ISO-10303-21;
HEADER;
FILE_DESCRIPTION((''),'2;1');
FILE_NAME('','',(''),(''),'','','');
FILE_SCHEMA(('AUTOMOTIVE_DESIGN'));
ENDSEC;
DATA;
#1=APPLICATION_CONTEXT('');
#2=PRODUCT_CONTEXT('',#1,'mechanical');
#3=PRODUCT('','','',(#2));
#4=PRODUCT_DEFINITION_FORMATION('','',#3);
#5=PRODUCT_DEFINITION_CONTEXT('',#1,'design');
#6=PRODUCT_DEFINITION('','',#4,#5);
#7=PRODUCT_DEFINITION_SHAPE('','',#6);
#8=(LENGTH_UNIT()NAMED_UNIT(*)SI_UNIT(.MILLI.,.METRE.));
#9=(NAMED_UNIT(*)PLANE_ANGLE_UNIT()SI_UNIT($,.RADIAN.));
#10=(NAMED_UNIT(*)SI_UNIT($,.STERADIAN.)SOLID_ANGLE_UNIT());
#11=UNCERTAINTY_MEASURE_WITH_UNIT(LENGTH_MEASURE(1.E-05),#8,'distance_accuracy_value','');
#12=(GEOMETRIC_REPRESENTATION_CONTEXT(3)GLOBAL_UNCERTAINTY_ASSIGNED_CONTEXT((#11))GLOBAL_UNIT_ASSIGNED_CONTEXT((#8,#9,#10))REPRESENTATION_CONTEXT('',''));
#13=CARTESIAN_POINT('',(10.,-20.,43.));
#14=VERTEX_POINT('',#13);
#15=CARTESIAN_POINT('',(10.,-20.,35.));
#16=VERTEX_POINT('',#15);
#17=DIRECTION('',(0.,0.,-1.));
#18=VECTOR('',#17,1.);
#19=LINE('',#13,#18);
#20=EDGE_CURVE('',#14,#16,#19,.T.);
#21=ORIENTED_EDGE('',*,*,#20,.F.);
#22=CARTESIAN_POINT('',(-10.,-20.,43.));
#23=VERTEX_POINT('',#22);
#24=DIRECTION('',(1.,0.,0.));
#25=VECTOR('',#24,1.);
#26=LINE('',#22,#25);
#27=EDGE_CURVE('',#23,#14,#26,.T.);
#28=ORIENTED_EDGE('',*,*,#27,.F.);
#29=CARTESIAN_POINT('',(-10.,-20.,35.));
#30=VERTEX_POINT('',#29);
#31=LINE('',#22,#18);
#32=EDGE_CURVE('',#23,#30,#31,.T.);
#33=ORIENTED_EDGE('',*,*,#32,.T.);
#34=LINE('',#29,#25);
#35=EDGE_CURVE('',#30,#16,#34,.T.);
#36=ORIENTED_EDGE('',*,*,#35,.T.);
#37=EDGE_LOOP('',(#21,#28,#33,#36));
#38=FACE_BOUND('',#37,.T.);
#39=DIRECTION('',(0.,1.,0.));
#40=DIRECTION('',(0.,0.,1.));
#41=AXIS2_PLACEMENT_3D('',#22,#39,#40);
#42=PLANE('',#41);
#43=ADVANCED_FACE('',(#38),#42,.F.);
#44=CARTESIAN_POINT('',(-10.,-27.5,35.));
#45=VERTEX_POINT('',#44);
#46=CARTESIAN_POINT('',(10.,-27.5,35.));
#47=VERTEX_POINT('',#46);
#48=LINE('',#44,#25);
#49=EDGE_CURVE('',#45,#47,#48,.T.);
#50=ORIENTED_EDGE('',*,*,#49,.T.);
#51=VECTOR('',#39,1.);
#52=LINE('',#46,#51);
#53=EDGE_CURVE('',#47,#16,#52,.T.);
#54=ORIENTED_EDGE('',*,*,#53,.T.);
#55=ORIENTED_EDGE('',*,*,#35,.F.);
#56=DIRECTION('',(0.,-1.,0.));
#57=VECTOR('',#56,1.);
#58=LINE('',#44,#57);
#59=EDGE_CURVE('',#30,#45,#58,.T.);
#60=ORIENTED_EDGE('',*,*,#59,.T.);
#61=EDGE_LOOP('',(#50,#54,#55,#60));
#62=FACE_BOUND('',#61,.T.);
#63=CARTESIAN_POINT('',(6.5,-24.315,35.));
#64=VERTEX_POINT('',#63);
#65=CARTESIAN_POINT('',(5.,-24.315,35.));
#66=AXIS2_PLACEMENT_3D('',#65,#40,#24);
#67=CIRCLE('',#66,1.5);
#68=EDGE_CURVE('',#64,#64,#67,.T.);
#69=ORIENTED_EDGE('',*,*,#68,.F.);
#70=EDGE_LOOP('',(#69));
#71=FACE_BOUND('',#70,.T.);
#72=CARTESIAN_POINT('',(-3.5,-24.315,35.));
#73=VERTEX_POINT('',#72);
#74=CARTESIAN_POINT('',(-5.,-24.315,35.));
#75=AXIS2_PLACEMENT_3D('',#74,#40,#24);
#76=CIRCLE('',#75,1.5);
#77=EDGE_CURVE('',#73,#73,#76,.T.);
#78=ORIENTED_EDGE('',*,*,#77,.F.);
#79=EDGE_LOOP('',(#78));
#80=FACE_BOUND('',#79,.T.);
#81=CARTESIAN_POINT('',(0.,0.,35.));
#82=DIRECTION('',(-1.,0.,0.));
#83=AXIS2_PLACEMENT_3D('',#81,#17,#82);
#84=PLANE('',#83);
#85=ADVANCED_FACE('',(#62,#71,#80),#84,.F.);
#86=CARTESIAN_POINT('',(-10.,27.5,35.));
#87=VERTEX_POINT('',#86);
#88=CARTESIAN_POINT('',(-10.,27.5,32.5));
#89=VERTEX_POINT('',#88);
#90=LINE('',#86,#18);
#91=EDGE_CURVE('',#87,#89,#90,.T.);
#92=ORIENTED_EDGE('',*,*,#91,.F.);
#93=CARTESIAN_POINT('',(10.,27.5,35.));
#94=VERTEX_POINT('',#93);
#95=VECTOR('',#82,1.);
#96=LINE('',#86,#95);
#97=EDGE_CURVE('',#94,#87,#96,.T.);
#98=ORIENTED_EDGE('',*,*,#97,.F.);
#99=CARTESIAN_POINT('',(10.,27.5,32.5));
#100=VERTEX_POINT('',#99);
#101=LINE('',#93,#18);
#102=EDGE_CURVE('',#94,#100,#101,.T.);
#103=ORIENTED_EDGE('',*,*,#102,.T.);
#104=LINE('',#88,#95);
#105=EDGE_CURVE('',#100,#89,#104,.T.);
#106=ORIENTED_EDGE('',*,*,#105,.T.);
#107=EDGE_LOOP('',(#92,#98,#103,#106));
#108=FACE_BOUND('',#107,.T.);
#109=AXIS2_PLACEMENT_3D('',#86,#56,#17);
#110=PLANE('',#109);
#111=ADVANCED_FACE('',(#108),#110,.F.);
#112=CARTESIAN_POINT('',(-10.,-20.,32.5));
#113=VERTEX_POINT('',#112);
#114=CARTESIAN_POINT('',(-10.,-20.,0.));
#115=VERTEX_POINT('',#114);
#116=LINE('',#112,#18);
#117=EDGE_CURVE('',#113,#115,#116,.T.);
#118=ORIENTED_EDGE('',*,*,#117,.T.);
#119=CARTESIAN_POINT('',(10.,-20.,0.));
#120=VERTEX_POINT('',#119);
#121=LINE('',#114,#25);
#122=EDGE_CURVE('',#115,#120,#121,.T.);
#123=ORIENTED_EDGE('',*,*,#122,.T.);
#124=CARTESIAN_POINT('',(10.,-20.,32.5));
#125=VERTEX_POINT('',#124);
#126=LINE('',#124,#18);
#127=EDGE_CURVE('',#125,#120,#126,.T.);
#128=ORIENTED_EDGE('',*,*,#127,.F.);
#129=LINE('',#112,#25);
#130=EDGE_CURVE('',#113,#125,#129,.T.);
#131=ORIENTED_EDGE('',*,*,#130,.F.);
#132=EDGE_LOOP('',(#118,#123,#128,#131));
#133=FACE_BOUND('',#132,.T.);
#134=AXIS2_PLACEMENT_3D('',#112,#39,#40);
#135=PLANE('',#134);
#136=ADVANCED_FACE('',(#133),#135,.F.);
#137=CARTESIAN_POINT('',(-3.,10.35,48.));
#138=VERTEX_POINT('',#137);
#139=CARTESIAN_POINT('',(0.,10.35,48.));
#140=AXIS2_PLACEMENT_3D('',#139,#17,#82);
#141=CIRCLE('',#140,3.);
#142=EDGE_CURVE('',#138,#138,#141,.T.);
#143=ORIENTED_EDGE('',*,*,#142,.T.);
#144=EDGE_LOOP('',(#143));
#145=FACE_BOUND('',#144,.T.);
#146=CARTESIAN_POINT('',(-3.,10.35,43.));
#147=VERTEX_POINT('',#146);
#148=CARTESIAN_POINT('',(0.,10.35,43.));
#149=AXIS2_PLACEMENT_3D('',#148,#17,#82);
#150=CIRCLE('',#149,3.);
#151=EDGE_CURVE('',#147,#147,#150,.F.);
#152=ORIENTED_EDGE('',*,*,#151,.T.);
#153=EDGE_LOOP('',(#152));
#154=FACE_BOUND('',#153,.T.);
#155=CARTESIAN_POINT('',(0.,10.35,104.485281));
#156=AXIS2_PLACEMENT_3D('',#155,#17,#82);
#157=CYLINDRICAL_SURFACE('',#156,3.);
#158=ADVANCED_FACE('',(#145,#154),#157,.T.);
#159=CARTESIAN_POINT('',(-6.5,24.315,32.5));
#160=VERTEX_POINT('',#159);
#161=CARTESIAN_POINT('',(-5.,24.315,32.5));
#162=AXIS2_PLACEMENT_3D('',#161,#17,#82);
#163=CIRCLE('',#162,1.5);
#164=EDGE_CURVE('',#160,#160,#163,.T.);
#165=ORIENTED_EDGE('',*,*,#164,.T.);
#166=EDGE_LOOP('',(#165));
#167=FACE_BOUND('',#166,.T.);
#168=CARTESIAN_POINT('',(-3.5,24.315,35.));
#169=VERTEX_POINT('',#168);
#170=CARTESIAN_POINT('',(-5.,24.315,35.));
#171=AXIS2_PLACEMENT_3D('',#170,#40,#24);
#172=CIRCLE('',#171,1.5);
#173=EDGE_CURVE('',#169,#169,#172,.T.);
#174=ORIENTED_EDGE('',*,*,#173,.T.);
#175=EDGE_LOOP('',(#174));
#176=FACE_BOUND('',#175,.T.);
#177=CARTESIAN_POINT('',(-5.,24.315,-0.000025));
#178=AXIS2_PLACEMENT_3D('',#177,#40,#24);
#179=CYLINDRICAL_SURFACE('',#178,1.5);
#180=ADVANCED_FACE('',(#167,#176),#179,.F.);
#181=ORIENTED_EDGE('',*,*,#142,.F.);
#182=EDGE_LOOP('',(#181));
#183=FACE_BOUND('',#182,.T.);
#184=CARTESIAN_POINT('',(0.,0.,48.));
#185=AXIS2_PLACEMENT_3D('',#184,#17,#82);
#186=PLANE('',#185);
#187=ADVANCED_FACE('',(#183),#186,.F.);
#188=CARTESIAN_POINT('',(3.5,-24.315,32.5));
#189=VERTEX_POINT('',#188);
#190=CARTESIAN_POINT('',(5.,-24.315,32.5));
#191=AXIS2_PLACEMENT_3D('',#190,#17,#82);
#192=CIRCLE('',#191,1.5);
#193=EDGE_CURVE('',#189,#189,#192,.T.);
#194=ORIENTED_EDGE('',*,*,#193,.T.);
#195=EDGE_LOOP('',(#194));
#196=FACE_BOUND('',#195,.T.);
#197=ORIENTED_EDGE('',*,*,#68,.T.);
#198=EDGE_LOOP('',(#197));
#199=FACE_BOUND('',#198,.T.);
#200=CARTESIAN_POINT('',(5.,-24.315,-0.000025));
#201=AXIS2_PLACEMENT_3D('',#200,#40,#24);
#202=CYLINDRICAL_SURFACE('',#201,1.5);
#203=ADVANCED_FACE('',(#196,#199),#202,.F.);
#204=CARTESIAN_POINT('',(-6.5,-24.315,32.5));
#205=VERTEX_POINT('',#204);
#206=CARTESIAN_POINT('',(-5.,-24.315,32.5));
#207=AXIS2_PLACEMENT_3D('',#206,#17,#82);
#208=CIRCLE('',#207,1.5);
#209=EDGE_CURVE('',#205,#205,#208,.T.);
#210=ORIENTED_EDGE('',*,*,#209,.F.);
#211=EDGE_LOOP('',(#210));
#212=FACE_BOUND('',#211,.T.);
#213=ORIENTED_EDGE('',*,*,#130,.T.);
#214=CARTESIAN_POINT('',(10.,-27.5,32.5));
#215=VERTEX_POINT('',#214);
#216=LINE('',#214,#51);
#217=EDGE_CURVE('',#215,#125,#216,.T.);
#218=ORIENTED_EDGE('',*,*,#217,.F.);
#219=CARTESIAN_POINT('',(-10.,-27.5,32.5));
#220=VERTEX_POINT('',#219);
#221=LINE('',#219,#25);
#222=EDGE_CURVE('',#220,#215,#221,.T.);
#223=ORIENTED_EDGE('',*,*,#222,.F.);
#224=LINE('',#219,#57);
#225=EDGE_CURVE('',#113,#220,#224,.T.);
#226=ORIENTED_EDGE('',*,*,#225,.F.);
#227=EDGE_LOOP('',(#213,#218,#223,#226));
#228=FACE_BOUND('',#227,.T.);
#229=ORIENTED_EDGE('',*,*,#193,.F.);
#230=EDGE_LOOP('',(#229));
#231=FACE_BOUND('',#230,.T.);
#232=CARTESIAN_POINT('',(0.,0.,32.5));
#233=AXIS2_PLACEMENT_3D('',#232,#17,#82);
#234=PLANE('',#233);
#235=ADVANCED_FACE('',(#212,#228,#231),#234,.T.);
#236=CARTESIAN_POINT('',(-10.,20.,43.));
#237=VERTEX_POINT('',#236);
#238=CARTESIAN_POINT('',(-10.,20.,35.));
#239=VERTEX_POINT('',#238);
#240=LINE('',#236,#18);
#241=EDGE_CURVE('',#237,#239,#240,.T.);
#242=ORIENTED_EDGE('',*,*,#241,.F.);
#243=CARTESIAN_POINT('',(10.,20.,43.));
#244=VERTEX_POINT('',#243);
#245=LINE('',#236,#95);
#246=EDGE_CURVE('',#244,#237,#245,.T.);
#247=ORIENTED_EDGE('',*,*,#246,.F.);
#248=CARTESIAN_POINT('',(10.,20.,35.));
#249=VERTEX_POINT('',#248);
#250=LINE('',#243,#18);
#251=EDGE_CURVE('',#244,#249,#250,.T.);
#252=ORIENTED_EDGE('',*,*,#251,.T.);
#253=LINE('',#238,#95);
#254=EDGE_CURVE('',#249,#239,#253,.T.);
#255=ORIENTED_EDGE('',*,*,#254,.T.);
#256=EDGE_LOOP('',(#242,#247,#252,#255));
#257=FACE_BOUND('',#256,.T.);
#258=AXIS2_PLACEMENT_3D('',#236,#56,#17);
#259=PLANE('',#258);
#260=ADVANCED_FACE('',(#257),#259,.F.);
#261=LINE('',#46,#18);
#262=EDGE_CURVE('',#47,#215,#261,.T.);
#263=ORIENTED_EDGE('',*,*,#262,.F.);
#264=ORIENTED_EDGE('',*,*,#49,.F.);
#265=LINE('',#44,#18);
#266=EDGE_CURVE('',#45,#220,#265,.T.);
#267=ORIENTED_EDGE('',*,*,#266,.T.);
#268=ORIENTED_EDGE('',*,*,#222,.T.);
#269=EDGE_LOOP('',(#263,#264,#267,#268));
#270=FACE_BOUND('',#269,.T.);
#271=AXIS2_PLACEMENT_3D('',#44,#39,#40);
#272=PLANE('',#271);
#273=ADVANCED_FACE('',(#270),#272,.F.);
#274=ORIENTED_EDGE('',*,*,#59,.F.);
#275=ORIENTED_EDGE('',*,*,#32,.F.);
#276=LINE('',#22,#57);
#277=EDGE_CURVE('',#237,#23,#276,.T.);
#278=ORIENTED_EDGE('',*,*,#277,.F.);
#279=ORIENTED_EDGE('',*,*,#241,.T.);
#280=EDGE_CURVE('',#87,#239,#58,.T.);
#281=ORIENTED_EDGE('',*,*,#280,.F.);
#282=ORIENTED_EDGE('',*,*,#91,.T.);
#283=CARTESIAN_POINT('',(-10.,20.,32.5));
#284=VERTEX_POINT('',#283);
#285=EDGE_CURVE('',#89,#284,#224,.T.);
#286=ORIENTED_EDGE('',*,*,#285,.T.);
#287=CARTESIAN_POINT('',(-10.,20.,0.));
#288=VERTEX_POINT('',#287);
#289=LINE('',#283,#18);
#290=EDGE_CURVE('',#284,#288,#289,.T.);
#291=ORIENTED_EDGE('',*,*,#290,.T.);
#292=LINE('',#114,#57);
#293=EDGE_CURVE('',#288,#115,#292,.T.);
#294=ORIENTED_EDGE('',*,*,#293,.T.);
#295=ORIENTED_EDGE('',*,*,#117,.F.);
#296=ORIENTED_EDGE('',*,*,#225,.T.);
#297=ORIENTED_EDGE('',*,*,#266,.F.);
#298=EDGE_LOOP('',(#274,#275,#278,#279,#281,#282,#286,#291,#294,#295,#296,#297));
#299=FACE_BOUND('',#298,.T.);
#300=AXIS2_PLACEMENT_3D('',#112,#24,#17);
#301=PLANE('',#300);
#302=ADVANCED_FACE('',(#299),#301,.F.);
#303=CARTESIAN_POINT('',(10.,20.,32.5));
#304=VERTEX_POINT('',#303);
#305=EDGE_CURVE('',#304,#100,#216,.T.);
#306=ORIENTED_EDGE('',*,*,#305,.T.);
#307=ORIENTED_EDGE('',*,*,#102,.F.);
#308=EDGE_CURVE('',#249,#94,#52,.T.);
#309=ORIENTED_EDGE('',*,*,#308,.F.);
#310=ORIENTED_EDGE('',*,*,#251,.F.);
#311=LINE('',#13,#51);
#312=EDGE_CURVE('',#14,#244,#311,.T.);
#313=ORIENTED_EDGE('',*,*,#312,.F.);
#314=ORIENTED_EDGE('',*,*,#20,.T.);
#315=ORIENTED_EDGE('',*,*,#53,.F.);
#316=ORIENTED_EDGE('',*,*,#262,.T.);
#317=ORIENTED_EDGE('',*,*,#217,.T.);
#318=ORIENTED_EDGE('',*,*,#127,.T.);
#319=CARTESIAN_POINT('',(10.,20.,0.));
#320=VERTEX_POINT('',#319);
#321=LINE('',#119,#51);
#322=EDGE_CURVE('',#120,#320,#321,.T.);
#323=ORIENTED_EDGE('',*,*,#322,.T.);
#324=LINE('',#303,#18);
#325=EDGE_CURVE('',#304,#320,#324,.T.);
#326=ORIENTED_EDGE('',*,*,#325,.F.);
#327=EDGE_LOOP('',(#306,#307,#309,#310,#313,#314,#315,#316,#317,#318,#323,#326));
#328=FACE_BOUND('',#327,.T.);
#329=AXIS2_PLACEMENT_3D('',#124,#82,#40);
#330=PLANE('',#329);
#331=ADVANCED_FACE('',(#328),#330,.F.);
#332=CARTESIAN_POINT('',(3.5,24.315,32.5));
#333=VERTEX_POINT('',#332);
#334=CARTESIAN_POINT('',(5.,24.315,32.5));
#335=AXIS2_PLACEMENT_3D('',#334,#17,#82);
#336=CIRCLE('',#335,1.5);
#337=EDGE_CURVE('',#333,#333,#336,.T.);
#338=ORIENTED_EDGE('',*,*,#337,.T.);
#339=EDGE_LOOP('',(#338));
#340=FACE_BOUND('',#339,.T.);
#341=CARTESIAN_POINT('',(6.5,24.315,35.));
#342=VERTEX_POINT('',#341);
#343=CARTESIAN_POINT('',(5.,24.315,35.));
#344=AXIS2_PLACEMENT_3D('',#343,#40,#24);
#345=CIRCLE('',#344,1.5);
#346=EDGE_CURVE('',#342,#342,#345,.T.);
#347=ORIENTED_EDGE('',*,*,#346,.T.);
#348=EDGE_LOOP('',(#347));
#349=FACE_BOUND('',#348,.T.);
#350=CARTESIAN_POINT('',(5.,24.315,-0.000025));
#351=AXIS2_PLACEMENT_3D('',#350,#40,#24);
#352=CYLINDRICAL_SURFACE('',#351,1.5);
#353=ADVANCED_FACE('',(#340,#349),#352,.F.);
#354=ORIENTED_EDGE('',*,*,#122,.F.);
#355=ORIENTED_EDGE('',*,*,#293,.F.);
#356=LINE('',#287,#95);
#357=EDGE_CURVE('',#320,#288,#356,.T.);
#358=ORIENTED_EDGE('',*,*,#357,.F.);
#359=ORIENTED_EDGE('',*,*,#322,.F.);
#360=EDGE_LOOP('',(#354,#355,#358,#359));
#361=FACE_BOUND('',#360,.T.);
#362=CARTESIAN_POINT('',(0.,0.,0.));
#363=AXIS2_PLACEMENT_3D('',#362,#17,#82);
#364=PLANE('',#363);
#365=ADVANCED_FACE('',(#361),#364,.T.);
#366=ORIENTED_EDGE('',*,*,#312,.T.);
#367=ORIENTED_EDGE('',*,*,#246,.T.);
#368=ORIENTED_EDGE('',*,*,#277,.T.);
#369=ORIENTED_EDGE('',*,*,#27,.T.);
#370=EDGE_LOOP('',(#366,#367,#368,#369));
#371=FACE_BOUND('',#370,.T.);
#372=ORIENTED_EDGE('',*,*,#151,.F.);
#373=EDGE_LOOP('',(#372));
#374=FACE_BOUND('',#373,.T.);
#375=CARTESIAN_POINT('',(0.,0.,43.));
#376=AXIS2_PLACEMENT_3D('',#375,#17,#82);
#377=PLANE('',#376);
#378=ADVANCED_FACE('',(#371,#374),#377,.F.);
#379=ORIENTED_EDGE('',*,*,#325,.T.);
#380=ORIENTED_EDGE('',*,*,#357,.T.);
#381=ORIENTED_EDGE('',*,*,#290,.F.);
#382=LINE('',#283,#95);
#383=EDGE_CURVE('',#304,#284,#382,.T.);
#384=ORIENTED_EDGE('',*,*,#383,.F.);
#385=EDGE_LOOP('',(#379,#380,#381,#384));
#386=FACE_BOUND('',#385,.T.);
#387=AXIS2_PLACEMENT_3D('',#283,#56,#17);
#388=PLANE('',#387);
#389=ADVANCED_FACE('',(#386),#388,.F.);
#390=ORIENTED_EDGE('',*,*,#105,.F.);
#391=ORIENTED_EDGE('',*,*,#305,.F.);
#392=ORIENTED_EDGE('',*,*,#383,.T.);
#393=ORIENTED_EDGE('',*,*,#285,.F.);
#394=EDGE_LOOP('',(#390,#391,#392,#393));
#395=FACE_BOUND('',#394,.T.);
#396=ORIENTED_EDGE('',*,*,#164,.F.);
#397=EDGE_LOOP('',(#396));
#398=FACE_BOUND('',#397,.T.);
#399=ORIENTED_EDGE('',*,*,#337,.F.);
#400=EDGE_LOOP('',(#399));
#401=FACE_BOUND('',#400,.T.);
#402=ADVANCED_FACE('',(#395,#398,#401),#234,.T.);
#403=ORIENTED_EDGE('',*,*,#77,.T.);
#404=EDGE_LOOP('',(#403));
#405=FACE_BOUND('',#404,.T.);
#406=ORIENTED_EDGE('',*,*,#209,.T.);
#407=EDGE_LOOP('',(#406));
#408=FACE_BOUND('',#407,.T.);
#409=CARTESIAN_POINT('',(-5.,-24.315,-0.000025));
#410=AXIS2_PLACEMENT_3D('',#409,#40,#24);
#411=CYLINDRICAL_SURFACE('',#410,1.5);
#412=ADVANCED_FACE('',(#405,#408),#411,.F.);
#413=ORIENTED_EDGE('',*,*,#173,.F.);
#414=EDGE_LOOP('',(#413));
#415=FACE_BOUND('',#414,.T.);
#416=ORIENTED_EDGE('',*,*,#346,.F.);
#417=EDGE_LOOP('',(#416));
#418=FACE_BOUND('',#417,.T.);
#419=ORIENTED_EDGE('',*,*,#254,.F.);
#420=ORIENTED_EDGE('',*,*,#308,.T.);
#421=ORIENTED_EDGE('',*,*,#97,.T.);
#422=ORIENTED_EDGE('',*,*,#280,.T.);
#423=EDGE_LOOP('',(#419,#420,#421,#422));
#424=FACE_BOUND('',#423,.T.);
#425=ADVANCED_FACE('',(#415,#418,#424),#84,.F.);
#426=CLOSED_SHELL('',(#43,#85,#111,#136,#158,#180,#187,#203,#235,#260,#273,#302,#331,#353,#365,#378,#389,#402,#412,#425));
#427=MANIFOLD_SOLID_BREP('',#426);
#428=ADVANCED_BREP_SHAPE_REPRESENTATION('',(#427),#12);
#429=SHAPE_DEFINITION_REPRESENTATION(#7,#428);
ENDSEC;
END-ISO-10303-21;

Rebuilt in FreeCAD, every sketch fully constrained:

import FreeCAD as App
import Part
import Sketcher
from FreeCAD import Vector

doc = App.newDocument("Part")
body = doc.addObject("PartDesign::Body", "Body")

# Sketch on XY plane
sketch1 = doc.addObject("Sketcher::SketchObject", "Sketch")
body.addObject(sketch1)
sketch1.AttachmentSupport = (doc.XY_Plane, [""])
sketch1.MapMode = "FlatFace"
sketch1.addGeometry([
    Part.LineSegment(Vector(-10, 20, 0), Vector(-10, -20, 0)),
    Part.LineSegment(Vector(-10, -20, 0), Vector(10, -20, 0)),
    Part.LineSegment(Vector(10, -20, 0), Vector(10, 20, 0)),
    Part.LineSegment(Vector(10, 20, 0), Vector(-10, 20, 0)),
], False)
sketch1.addConstraint([
    Sketcher.Constraint("Coincident", 0, 2, 1, 1),
    Sketcher.Constraint("Coincident", 1, 2, 2, 1),
    Sketcher.Constraint("Coincident", 2, 2, 3, 1),
    Sketcher.Constraint("Coincident", 3, 2, 0, 1),
    Sketcher.Constraint("Vertical", 0),
    Sketcher.Constraint("Horizontal", 1),
    Sketcher.Constraint("Vertical", 2),
    Sketcher.Constraint("Horizontal", 3),
    Sketcher.Constraint("Symmetric", 0, 2, 2, 2, -1, 1),
    Sketcher.Constraint("DistanceX", 1, 1, 1, 2, 20.0),
    Sketcher.Constraint("DistanceY", 0, 2, 0, 1, 40.0),
])
pad1 = doc.addObject("PartDesign::Pad", "Pad")
body.addObject(pad1)
pad1.Profile = sketch1
pad1.Length = 32.5

# Sketch on XY plane
sketch2 = doc.addObject("Sketcher::SketchObject", "Sketch001")
body.addObject(sketch2)
sketch2.AttachmentSupport = (doc.XY_Plane, [""])
sketch2.MapMode = "FlatFace"
sketch2.AttachmentOffset = App.Placement(Vector(0, 0, 32.5), App.Rotation())
sketch2.addGeometry([
    Part.LineSegment(Vector(-10, 27.5, 0), Vector(-10, -27.5, 0)),
    Part.LineSegment(Vector(-10, -27.5, 0), Vector(10, -27.5, 0)),
    Part.LineSegment(Vector(10, -27.5, 0), Vector(10, 27.5, 0)),
    Part.LineSegment(Vector(10, 27.5, 0), Vector(-10, 27.5, 0)),
], False)
sketch2.addConstraint([
    Sketcher.Constraint("Coincident", 0, 2, 1, 1),
    Sketcher.Constraint("Coincident", 1, 2, 2, 1),
    Sketcher.Constraint("Coincident", 2, 2, 3, 1),
    Sketcher.Constraint("Coincident", 3, 2, 0, 1),
    Sketcher.Constraint("Vertical", 0),
    Sketcher.Constraint("Horizontal", 1),
    Sketcher.Constraint("Vertical", 2),
    Sketcher.Constraint("Horizontal", 3),
    Sketcher.Constraint("Symmetric", 0, 2, 2, 2, -1, 1),
    Sketcher.Constraint("DistanceX", 1, 1, 1, 2, 20.0),
    Sketcher.Constraint("DistanceY", 0, 2, 0, 1, 55.0),
])
pad2 = doc.addObject("PartDesign::Pad", "Pad001")
body.addObject(pad2)
pad2.Profile = sketch2
pad2.Length = 2.5

# Sketch on XY plane
sketch3 = doc.addObject("Sketcher::SketchObject", "Sketch002")
body.addObject(sketch3)
sketch3.AttachmentSupport = (doc.XY_Plane, [""])
sketch3.MapMode = "FlatFace"
sketch3.AttachmentOffset = App.Placement(Vector(0, 0, 35), App.Rotation())
sketch3.addGeometry([
    Part.LineSegment(Vector(-10, 20, 0), Vector(-10, -20, 0)),
    Part.LineSegment(Vector(-10, -20, 0), Vector(10, -20, 0)),
    Part.LineSegment(Vector(10, -20, 0), Vector(10, 20, 0)),
    Part.LineSegment(Vector(10, 20, 0), Vector(-10, 20, 0)),
], False)
sketch3.addConstraint([
    Sketcher.Constraint("Coincident", 0, 2, 1, 1),
    Sketcher.Constraint("Coincident", 1, 2, 2, 1),
    Sketcher.Constraint("Coincident", 2, 2, 3, 1),
    Sketcher.Constraint("Coincident", 3, 2, 0, 1),
    Sketcher.Constraint("Vertical", 0),
    Sketcher.Constraint("Horizontal", 1),
    Sketcher.Constraint("Vertical", 2),
    Sketcher.Constraint("Horizontal", 3),
    Sketcher.Constraint("Symmetric", 0, 2, 2, 2, -1, 1),
    Sketcher.Constraint("DistanceX", 1, 1, 1, 2, 20.0),
    Sketcher.Constraint("DistanceY", 0, 2, 0, 1, 40.0),
])
pad3 = doc.addObject("PartDesign::Pad", "Pad002")
body.addObject(pad3)
pad3.Profile = sketch3
pad3.Length = 8

# Sketch on XY plane
sketch4 = doc.addObject("Sketcher::SketchObject", "Sketch003")
body.addObject(sketch4)
sketch4.AttachmentSupport = (doc.XY_Plane, [""])
sketch4.MapMode = "FlatFace"
sketch4.AttachmentOffset = App.Placement(Vector(0, 0, 43), App.Rotation())
sketch4.addGeometry(Part.Circle(Vector(0, 10.35, 0), Vector(0, 0, 1), 3), False)
sketch4.addConstraint([
    Sketcher.Constraint("PointOnObject", 0, 3, -2),
    Sketcher.Constraint("Diameter", 0, 6.0),
    Sketcher.Constraint("DistanceY", -1, 1, 0, 3, 10.35),
])
pad4 = doc.addObject("PartDesign::Pad", "Pad003")
body.addObject(pad4)
pad4.Profile = sketch4
pad4.Length = 5

# Sketch on XY plane
sketch5 = doc.addObject("Sketcher::SketchObject", "Sketch004")
body.addObject(sketch5)
sketch5.AttachmentSupport = (doc.XY_Plane, [""])
sketch5.MapMode = "FlatFace"
sketch5.AttachmentOffset = App.Placement(Vector(0, 0, 35), App.Rotation())
sketch5.addGeometry([
    Part.Circle(Vector(-5, 24.315, 0), Vector(0, 0, 1), 1.5),
    Part.Circle(Vector(5, 24.315, 0), Vector(0, 0, 1), 1.5),
    Part.Circle(Vector(-5, -24.315, 0), Vector(0, 0, 1), 1.5),
    Part.Circle(Vector(5, -24.315, 0), Vector(0, 0, 1), 1.5),
], False)
sketch5.addConstraint([
    Sketcher.Constraint("Equal", 0, 1),
    Sketcher.Constraint("Equal", 1, 2),
    Sketcher.Constraint("Equal", 2, 3),
    Sketcher.Constraint("Symmetric", 1, 3, 2, 3, -1, 1),
    Sketcher.Constraint("Symmetric", 0, 3, 3, 3, -1, 1),
    Sketcher.Constraint("Symmetric", 0, 3, 1, 3, -2),
    Sketcher.Constraint("Diameter", 0, 3.0),
    Sketcher.Constraint("DistanceX", 0, 3, -1, 1, 5.0),
    Sketcher.Constraint("DistanceY", 2, 3, 0, 3, 48.63),
])
pocket1 = doc.addObject("PartDesign::Pocket", "Pocket")
body.addObject(pocket1)
pocket1.Profile = sketch5
pocket1.Type = "ThroughAll"

doc.recompute()
